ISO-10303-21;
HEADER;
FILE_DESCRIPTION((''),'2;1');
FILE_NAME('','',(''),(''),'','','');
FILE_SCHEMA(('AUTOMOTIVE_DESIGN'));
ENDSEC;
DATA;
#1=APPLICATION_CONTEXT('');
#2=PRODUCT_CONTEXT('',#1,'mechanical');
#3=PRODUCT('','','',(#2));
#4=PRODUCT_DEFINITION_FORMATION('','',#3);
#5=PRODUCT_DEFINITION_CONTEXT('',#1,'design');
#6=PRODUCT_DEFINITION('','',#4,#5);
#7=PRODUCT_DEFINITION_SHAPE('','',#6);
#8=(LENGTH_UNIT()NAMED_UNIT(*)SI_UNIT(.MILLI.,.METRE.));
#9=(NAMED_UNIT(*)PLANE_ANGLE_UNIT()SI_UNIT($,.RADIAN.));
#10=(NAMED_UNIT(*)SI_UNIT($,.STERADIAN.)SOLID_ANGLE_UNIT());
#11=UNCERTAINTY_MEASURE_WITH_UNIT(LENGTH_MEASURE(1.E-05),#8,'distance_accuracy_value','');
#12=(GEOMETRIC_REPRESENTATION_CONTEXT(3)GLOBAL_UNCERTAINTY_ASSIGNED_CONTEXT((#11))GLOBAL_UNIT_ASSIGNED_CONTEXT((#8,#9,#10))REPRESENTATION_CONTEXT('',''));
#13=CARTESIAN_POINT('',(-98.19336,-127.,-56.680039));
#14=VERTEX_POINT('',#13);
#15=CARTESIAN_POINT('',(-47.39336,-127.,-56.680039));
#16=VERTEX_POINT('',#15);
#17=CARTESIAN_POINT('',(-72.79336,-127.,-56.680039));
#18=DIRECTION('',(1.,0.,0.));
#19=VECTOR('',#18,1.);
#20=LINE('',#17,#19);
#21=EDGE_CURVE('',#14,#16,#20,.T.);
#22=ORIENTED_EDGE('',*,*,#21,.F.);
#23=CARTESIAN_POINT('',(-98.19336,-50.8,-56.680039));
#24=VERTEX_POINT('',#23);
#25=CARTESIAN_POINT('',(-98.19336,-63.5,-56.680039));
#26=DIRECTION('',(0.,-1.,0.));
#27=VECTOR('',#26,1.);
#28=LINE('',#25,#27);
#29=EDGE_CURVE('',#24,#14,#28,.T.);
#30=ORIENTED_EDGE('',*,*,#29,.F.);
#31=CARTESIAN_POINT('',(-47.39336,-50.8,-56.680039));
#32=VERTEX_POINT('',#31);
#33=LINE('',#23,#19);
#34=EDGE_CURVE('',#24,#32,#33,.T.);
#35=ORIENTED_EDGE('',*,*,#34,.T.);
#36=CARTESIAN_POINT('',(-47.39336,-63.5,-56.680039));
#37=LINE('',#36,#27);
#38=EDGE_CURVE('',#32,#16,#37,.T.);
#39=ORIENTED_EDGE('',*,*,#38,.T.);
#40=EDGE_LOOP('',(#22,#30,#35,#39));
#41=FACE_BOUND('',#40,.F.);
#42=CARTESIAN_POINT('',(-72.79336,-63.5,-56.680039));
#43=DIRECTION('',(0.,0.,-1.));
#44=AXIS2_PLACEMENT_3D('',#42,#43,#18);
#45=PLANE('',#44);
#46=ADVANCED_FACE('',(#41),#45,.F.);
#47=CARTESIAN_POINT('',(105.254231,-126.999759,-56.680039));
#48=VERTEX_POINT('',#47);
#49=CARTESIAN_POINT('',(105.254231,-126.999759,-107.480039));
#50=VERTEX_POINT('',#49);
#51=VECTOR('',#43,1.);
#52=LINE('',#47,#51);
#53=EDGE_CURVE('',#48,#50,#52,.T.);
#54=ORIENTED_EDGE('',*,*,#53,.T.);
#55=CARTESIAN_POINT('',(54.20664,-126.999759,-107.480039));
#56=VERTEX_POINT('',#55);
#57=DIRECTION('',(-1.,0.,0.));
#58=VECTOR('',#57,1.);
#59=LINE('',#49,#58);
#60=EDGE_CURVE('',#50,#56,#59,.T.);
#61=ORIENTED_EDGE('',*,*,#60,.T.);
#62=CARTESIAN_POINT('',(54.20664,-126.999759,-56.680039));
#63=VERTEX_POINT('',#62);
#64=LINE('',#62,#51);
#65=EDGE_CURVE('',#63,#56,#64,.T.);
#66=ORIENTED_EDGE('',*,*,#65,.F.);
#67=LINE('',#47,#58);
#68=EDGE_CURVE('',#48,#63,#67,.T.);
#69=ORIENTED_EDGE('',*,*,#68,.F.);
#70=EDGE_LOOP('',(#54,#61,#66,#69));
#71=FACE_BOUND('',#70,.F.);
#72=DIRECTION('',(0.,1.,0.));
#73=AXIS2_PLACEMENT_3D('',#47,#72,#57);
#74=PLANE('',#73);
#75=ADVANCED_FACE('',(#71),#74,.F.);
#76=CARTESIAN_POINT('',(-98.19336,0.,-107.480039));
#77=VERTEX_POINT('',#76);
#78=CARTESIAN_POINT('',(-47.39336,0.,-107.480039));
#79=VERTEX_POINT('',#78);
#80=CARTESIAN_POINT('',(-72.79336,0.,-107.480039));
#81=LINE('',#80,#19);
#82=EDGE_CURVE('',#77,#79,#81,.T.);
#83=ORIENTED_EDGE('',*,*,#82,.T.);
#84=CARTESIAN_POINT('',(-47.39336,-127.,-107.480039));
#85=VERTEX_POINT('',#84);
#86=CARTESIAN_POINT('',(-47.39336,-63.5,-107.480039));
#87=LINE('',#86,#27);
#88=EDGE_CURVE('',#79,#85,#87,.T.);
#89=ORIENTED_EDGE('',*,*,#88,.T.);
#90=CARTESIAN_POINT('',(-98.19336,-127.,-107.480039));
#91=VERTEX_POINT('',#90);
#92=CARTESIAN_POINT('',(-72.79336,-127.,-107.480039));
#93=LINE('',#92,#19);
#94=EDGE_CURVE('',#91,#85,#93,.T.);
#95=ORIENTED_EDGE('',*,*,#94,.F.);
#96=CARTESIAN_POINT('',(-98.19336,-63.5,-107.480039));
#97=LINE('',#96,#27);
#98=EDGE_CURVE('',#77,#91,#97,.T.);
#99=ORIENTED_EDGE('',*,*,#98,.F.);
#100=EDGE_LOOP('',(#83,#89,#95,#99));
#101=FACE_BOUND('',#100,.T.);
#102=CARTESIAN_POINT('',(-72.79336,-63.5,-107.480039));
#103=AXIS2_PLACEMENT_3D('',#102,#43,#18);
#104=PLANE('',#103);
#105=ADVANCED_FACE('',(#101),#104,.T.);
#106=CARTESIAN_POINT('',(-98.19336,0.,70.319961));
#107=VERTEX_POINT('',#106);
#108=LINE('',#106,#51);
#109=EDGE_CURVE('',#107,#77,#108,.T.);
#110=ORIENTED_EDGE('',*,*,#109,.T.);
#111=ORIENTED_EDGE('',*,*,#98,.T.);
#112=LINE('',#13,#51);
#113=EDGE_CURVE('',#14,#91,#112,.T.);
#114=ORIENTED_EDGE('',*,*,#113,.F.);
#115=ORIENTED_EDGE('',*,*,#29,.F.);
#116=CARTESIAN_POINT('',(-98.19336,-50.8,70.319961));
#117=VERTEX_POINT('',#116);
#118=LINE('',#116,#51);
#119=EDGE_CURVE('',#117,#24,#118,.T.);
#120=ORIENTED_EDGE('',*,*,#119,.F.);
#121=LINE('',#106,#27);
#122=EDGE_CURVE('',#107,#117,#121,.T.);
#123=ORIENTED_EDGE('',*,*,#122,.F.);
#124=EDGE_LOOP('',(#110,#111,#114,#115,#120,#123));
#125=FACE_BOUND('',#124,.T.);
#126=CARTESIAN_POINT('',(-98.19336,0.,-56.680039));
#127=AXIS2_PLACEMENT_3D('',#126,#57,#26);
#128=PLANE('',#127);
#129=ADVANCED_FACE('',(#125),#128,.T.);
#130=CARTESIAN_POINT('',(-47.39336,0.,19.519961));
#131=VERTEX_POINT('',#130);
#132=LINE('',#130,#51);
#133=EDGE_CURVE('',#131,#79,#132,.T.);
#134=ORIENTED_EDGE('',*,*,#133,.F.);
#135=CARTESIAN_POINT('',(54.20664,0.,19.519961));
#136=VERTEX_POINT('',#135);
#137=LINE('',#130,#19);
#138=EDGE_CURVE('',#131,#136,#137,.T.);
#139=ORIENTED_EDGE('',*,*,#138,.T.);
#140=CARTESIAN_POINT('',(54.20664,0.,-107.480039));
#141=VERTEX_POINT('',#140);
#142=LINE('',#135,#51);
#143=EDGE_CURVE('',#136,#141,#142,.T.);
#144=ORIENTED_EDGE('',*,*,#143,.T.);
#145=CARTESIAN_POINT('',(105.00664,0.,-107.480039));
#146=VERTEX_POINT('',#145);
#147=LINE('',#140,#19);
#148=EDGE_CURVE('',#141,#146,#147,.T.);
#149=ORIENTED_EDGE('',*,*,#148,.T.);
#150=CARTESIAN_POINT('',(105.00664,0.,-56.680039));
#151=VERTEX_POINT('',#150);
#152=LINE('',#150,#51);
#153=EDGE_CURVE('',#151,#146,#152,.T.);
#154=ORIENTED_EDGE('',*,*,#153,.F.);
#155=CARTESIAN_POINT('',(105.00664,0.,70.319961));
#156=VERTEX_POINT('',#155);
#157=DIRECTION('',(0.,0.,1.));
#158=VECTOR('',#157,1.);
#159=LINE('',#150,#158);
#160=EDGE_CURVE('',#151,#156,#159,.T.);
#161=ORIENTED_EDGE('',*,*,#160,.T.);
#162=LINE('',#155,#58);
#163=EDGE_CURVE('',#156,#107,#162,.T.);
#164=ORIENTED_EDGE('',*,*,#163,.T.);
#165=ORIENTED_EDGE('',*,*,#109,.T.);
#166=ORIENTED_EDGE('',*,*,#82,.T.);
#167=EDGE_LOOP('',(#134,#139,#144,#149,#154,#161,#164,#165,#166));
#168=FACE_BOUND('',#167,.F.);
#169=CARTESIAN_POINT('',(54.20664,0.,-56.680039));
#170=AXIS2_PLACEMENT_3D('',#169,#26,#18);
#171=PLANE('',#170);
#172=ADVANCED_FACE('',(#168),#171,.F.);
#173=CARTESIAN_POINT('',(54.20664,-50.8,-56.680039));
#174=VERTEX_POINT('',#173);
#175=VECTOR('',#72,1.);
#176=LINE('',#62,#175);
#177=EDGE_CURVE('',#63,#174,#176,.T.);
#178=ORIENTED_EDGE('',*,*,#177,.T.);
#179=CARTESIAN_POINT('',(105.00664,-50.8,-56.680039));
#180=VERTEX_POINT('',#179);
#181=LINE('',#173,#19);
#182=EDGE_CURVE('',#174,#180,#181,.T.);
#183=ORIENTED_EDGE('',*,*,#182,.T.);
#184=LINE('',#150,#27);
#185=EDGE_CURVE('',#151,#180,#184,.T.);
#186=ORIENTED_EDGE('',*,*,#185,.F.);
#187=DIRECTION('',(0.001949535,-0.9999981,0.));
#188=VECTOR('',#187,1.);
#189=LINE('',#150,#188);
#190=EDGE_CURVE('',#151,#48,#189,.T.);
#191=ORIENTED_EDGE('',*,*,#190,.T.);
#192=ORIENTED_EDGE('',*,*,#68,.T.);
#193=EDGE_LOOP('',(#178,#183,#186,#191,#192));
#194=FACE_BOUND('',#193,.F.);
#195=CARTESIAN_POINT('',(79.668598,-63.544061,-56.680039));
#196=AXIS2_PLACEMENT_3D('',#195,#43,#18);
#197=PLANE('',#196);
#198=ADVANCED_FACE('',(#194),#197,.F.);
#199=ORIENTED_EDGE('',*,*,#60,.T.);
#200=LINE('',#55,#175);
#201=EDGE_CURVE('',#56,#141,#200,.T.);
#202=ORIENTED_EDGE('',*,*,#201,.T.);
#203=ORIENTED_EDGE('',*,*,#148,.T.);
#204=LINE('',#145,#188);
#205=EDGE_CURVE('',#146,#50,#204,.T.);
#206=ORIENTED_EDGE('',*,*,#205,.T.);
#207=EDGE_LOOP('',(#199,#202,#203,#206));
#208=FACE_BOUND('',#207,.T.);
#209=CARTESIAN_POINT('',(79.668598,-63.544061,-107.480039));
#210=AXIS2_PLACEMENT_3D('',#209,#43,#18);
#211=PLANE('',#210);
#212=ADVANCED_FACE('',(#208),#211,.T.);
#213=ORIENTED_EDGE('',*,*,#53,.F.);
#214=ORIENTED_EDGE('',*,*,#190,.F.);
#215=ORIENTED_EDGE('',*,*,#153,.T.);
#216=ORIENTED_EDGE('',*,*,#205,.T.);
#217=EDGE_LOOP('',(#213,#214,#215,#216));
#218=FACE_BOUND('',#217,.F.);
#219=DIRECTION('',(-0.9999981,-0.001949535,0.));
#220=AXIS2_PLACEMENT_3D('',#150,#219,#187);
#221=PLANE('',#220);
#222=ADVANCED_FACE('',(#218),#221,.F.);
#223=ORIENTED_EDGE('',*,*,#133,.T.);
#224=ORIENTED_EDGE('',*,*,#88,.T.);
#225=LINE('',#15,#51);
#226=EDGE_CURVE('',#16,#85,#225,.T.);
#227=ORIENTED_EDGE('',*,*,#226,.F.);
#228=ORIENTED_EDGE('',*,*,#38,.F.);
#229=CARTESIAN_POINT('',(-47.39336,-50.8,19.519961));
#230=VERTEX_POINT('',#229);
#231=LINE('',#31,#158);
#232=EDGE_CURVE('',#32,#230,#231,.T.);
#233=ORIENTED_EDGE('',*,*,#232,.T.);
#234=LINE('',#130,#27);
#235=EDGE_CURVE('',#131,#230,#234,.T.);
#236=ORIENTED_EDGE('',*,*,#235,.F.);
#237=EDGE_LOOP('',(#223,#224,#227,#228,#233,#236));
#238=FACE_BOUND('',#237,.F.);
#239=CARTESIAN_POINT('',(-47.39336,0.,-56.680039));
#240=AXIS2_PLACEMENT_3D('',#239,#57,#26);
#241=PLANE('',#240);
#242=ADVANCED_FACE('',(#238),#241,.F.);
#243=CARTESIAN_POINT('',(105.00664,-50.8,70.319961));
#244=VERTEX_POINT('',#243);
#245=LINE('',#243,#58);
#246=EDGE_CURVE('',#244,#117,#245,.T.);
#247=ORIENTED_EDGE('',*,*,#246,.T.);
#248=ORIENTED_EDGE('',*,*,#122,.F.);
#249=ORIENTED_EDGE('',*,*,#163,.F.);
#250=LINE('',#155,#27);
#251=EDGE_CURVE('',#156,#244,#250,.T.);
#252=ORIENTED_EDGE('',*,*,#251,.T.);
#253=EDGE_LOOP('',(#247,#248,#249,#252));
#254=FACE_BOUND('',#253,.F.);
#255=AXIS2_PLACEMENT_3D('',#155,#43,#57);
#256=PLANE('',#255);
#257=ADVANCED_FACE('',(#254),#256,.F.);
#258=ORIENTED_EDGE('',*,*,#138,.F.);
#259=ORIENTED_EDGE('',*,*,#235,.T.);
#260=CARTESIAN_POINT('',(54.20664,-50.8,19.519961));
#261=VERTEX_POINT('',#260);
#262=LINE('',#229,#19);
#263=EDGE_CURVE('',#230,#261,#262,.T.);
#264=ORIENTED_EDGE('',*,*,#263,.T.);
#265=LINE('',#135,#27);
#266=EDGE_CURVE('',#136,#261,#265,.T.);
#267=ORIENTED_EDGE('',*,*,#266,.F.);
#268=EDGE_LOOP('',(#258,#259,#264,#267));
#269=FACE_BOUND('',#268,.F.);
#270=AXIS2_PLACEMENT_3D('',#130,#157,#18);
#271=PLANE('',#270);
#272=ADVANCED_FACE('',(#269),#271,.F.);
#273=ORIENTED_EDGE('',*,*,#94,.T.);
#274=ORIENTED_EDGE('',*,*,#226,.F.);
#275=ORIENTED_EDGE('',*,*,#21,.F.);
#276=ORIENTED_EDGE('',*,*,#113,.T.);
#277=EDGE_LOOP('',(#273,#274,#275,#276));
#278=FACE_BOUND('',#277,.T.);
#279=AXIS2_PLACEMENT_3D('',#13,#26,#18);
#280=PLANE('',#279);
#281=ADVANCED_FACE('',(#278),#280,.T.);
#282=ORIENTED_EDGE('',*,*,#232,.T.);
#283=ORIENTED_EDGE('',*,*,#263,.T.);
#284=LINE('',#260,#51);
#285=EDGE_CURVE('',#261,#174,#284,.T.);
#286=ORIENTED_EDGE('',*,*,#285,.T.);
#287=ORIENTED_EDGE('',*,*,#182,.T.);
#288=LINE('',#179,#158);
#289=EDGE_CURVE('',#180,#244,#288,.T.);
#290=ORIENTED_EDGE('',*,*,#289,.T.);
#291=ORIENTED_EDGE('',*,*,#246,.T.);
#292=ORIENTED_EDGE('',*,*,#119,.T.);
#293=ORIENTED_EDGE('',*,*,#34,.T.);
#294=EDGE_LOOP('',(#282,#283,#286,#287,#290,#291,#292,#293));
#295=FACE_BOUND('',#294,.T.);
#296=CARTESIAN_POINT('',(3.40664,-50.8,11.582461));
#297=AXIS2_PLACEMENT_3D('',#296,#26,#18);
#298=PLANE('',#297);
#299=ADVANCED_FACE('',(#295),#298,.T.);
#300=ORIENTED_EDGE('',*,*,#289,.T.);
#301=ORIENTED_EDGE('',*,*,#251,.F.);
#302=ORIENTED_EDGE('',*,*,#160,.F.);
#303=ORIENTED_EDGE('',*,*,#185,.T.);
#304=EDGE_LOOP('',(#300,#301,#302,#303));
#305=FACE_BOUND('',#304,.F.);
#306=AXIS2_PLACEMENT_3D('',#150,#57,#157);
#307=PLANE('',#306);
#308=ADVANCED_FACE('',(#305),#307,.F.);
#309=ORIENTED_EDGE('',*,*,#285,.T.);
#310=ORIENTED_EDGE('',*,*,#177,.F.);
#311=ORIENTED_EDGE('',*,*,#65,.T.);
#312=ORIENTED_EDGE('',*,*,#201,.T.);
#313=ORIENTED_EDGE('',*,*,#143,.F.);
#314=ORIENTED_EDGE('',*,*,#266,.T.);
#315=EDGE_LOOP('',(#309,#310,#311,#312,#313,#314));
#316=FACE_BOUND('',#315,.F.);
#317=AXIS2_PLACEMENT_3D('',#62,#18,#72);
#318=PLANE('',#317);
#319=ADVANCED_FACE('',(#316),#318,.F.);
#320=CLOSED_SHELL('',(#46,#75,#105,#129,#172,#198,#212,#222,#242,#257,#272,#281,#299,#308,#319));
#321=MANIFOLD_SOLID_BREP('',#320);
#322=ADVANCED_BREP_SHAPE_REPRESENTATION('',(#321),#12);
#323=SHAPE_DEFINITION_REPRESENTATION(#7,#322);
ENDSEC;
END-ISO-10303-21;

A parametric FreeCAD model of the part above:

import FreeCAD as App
import Part
import Sketcher
from FreeCAD import Vector
Q = App.Units.Quantity

doc = App.newDocument("Part")
body = doc.addObject("PartDesign::Body", "Body")

sketch1 = doc.addObject("Sketcher::SketchObject", "Sketch")
body.addObject(sketch1)
sketch1.AttachmentSupport = (doc.XZ_Plane, [""])
sketch1.MapMode = "FlatFace"
sketch1.addGeometry([
    Part.LineSegment(Vector(-98.19336, 70.319961, 0), Vector(-98.19336, -56.680039, 0)),
    Part.LineSegment(Vector(-98.19336, -56.680039, 0), Vector(-47.39336, -56.680039, 0)),
    Part.LineSegment(Vector(-47.39336, -56.680039, 0), Vector(-47.39336, 19.519961, 0)),
    Part.LineSegment(Vector(-47.39336, 19.519961, 0), Vector(54.20664, 19.519961, 0)),
    Part.LineSegment(Vector(54.20664, 19.519961, 0), Vector(54.20664, -56.680039, 0)),
    Part.LineSegment(Vector(54.20664, -56.680039, 0), Vector(105.00664, -56.680039, 0)),
    Part.LineSegment(Vector(105.00664, -56.680039, 0), Vector(105.00664, 70.319961, 0)),
    Part.LineSegment(Vector(105.00664, 70.319961, 0), Vector(-98.19336, 70.319961, 0)),
], False)
sketch1.addConstraint([
    Sketcher.Constraint("Coincident", 0, 2, 1, 1),
    Sketcher.Constraint("Coincident", 1, 2, 2, 1),
    Sketcher.Constraint("Coincident", 2, 2, 3, 1),
    Sketcher.Constraint("Coincident", 3, 2, 4, 1),
    Sketcher.Constraint("Coincident", 4, 2, 5, 1),
    Sketcher.Constraint("Coincident", 5, 2, 6, 1),
    Sketcher.Constraint("Coincident", 6, 2, 7, 1),
    Sketcher.Constraint("Coincident", 7, 2, 0, 1),
    Sketcher.Constraint("Vertical", 0),
    Sketcher.Constraint("Horizontal", 1),
    Sketcher.Constraint("Vertical", 2),
    Sketcher.Constraint("Horizontal", 3),
    Sketcher.Constraint("Vertical", 4),
    Sketcher.Constraint("Horizontal", 5),
    Sketcher.Constraint("Vertical", 6),
    Sketcher.Constraint("Horizontal", 7),
    Sketcher.Constraint("Horizontal", 1, 2, 4, 2),
    Sketcher.Constraint("Equal", 1, 5),
    Sketcher.Constraint("DistanceX", 1, 1, 1, 2, Q("2 in")),
    Sketcher.Constraint("DistanceX", 3, 1, 3, 2, Q("4 in")),
    Sketcher.Constraint("DistanceY", 0, 2, 0, 1, Q("5 in")),
    Sketcher.Constraint("DistanceY", 2, 1, 2, 2, Q("3 in")),
    Sketcher.Constraint("DistanceX", 0, 2, -1, 1, Q("98.19336 mm")),
    Sketcher.Constraint("DistanceY", 0, 2, -1, 1, Q("56.680039 mm")),
])
pad1 = doc.addObject("PartDesign::Pad", "Pad")
body.addObject(pad1)
pad1.Profile = sketch1
pad1.Length = Q("2 in")

sketch2 = doc.addObject("Sketcher::SketchObject", "Sketch001")
body.addObject(sketch2)
sketch2.AttachmentSupport = (doc.XY_Plane, [""])
sketch2.MapMode = "FlatFace"
sketch2.AttachmentOffset = App.Placement(Vector(0, 0, -56.680039), App.Rotation())
sketch2.addGeometry([
    Part.LineSegment(Vector(-98.19336, -127, 0), Vector(-98.19336, 0, 0)),
    Part.LineSegment(Vector(-98.19336, 0, 0), Vector(-47.39336, 0, 0)),
    Part.LineSegment(Vector(-47.39336, 0, 0), Vector(-47.39336, -127, 0)),
    Part.LineSegment(Vector(-47.39336, -127, 0), Vector(-98.19336, -127, 0)),
], False)
sketch2.addConstraint([
    Sketcher.Constraint("Coincident", 0, 2, 1, 1),
    Sketcher.Constraint("Coincident", 1, 2, 2, 1),
    Sketcher.Constraint("Coincident", 2, 2, 3, 1),
    Sketcher.Constraint("Coincident", 3, 2, 0, 1),
    Sketcher.Constraint("Vertical", 0),
    Sketcher.Constraint("Horizontal", 1),
    Sketcher.Constraint("Vertical", 2),
    Sketcher.Constraint("Horizontal", 3),
    Sketcher.Constraint("PointOnObject", 0, 2, -1),
    Sketcher.Constraint("DistanceX", 1, 1, 1, 2, Q("2 in")),
    Sketcher.Constraint("DistanceY", 0, 1, 0, 2, Q("5 in")),
    Sketcher.Constraint("DistanceX", 0, 2, -1, 1, Q("98.19336 mm")),
])
pad2 = doc.addObject("PartDesign::Pad", "Pad001")
body.addObject(pad2)
pad2.Profile = sketch2
pad2.Length = Q("2 in")
pad2.Reversed = True

sketch3 = doc.addObject("Sketcher::SketchObject", "Sketch002")
body.addObject(sketch3)
sketch3.AttachmentSupport = (doc.XY_Plane, [""])
sketch3.MapMode = "FlatFace"
sketch3.AttachmentOffset = App.Placement(Vector(0, 0, -56.680039), App.Rotation())
sketch3.addGeometry([
    Part.LineSegment(Vector(54.20664, -126.999759, 0), Vector(54.20664, 0, 0)),
    Part.LineSegment(Vector(54.20664, 0, 0), Vector(105.00664, 0, 0)),
    Part.LineSegment(Vector(105.00664, 0, 0), Vector(105.254231, -126.999759, 0)),
    Part.LineSegment(Vector(105.254231, -126.999759, 0), Vector(54.20664, -126.999759, 0)),
], False)
sketch3.addConstraint([
    Sketcher.Constraint("Coincident", 0, 2, 1, 1),
    Sketcher.Constraint("Coincident", 1, 2, 2, 1),
    Sketcher.Constraint("Coincident", 2, 2, 3, 1),
    Sketcher.Constraint("Coincident", 3, 2, 0, 1),
    Sketcher.Constraint("Vertical", 0),
    Sketcher.Constraint("Horizontal", 1),
    Sketcher.Constraint("Horizontal", 3),
    Sketcher.Constraint("PointOnObject", 0, 2, -1),
    Sketcher.Constraint("DistanceX", 1, 1, 1, 2, Q("2 in")),
    Sketcher.Constraint("Distance", 2, Q("5 in")),
    Sketcher.Constraint("DistanceX", 3, 2, 3, 1, Q("51.047591 mm")),
    Sketcher.Constraint("DistanceX", -1, 1, 0, 2, Q("54.20664 mm")),
])
pad3 = doc.addObject("PartDesign::Pad", "Pad002")
body.addObject(pad3)
pad3.Profile = sketch3
pad3.Length = Q("2 in")
pad3.Reversed = True

doc.recompute()
